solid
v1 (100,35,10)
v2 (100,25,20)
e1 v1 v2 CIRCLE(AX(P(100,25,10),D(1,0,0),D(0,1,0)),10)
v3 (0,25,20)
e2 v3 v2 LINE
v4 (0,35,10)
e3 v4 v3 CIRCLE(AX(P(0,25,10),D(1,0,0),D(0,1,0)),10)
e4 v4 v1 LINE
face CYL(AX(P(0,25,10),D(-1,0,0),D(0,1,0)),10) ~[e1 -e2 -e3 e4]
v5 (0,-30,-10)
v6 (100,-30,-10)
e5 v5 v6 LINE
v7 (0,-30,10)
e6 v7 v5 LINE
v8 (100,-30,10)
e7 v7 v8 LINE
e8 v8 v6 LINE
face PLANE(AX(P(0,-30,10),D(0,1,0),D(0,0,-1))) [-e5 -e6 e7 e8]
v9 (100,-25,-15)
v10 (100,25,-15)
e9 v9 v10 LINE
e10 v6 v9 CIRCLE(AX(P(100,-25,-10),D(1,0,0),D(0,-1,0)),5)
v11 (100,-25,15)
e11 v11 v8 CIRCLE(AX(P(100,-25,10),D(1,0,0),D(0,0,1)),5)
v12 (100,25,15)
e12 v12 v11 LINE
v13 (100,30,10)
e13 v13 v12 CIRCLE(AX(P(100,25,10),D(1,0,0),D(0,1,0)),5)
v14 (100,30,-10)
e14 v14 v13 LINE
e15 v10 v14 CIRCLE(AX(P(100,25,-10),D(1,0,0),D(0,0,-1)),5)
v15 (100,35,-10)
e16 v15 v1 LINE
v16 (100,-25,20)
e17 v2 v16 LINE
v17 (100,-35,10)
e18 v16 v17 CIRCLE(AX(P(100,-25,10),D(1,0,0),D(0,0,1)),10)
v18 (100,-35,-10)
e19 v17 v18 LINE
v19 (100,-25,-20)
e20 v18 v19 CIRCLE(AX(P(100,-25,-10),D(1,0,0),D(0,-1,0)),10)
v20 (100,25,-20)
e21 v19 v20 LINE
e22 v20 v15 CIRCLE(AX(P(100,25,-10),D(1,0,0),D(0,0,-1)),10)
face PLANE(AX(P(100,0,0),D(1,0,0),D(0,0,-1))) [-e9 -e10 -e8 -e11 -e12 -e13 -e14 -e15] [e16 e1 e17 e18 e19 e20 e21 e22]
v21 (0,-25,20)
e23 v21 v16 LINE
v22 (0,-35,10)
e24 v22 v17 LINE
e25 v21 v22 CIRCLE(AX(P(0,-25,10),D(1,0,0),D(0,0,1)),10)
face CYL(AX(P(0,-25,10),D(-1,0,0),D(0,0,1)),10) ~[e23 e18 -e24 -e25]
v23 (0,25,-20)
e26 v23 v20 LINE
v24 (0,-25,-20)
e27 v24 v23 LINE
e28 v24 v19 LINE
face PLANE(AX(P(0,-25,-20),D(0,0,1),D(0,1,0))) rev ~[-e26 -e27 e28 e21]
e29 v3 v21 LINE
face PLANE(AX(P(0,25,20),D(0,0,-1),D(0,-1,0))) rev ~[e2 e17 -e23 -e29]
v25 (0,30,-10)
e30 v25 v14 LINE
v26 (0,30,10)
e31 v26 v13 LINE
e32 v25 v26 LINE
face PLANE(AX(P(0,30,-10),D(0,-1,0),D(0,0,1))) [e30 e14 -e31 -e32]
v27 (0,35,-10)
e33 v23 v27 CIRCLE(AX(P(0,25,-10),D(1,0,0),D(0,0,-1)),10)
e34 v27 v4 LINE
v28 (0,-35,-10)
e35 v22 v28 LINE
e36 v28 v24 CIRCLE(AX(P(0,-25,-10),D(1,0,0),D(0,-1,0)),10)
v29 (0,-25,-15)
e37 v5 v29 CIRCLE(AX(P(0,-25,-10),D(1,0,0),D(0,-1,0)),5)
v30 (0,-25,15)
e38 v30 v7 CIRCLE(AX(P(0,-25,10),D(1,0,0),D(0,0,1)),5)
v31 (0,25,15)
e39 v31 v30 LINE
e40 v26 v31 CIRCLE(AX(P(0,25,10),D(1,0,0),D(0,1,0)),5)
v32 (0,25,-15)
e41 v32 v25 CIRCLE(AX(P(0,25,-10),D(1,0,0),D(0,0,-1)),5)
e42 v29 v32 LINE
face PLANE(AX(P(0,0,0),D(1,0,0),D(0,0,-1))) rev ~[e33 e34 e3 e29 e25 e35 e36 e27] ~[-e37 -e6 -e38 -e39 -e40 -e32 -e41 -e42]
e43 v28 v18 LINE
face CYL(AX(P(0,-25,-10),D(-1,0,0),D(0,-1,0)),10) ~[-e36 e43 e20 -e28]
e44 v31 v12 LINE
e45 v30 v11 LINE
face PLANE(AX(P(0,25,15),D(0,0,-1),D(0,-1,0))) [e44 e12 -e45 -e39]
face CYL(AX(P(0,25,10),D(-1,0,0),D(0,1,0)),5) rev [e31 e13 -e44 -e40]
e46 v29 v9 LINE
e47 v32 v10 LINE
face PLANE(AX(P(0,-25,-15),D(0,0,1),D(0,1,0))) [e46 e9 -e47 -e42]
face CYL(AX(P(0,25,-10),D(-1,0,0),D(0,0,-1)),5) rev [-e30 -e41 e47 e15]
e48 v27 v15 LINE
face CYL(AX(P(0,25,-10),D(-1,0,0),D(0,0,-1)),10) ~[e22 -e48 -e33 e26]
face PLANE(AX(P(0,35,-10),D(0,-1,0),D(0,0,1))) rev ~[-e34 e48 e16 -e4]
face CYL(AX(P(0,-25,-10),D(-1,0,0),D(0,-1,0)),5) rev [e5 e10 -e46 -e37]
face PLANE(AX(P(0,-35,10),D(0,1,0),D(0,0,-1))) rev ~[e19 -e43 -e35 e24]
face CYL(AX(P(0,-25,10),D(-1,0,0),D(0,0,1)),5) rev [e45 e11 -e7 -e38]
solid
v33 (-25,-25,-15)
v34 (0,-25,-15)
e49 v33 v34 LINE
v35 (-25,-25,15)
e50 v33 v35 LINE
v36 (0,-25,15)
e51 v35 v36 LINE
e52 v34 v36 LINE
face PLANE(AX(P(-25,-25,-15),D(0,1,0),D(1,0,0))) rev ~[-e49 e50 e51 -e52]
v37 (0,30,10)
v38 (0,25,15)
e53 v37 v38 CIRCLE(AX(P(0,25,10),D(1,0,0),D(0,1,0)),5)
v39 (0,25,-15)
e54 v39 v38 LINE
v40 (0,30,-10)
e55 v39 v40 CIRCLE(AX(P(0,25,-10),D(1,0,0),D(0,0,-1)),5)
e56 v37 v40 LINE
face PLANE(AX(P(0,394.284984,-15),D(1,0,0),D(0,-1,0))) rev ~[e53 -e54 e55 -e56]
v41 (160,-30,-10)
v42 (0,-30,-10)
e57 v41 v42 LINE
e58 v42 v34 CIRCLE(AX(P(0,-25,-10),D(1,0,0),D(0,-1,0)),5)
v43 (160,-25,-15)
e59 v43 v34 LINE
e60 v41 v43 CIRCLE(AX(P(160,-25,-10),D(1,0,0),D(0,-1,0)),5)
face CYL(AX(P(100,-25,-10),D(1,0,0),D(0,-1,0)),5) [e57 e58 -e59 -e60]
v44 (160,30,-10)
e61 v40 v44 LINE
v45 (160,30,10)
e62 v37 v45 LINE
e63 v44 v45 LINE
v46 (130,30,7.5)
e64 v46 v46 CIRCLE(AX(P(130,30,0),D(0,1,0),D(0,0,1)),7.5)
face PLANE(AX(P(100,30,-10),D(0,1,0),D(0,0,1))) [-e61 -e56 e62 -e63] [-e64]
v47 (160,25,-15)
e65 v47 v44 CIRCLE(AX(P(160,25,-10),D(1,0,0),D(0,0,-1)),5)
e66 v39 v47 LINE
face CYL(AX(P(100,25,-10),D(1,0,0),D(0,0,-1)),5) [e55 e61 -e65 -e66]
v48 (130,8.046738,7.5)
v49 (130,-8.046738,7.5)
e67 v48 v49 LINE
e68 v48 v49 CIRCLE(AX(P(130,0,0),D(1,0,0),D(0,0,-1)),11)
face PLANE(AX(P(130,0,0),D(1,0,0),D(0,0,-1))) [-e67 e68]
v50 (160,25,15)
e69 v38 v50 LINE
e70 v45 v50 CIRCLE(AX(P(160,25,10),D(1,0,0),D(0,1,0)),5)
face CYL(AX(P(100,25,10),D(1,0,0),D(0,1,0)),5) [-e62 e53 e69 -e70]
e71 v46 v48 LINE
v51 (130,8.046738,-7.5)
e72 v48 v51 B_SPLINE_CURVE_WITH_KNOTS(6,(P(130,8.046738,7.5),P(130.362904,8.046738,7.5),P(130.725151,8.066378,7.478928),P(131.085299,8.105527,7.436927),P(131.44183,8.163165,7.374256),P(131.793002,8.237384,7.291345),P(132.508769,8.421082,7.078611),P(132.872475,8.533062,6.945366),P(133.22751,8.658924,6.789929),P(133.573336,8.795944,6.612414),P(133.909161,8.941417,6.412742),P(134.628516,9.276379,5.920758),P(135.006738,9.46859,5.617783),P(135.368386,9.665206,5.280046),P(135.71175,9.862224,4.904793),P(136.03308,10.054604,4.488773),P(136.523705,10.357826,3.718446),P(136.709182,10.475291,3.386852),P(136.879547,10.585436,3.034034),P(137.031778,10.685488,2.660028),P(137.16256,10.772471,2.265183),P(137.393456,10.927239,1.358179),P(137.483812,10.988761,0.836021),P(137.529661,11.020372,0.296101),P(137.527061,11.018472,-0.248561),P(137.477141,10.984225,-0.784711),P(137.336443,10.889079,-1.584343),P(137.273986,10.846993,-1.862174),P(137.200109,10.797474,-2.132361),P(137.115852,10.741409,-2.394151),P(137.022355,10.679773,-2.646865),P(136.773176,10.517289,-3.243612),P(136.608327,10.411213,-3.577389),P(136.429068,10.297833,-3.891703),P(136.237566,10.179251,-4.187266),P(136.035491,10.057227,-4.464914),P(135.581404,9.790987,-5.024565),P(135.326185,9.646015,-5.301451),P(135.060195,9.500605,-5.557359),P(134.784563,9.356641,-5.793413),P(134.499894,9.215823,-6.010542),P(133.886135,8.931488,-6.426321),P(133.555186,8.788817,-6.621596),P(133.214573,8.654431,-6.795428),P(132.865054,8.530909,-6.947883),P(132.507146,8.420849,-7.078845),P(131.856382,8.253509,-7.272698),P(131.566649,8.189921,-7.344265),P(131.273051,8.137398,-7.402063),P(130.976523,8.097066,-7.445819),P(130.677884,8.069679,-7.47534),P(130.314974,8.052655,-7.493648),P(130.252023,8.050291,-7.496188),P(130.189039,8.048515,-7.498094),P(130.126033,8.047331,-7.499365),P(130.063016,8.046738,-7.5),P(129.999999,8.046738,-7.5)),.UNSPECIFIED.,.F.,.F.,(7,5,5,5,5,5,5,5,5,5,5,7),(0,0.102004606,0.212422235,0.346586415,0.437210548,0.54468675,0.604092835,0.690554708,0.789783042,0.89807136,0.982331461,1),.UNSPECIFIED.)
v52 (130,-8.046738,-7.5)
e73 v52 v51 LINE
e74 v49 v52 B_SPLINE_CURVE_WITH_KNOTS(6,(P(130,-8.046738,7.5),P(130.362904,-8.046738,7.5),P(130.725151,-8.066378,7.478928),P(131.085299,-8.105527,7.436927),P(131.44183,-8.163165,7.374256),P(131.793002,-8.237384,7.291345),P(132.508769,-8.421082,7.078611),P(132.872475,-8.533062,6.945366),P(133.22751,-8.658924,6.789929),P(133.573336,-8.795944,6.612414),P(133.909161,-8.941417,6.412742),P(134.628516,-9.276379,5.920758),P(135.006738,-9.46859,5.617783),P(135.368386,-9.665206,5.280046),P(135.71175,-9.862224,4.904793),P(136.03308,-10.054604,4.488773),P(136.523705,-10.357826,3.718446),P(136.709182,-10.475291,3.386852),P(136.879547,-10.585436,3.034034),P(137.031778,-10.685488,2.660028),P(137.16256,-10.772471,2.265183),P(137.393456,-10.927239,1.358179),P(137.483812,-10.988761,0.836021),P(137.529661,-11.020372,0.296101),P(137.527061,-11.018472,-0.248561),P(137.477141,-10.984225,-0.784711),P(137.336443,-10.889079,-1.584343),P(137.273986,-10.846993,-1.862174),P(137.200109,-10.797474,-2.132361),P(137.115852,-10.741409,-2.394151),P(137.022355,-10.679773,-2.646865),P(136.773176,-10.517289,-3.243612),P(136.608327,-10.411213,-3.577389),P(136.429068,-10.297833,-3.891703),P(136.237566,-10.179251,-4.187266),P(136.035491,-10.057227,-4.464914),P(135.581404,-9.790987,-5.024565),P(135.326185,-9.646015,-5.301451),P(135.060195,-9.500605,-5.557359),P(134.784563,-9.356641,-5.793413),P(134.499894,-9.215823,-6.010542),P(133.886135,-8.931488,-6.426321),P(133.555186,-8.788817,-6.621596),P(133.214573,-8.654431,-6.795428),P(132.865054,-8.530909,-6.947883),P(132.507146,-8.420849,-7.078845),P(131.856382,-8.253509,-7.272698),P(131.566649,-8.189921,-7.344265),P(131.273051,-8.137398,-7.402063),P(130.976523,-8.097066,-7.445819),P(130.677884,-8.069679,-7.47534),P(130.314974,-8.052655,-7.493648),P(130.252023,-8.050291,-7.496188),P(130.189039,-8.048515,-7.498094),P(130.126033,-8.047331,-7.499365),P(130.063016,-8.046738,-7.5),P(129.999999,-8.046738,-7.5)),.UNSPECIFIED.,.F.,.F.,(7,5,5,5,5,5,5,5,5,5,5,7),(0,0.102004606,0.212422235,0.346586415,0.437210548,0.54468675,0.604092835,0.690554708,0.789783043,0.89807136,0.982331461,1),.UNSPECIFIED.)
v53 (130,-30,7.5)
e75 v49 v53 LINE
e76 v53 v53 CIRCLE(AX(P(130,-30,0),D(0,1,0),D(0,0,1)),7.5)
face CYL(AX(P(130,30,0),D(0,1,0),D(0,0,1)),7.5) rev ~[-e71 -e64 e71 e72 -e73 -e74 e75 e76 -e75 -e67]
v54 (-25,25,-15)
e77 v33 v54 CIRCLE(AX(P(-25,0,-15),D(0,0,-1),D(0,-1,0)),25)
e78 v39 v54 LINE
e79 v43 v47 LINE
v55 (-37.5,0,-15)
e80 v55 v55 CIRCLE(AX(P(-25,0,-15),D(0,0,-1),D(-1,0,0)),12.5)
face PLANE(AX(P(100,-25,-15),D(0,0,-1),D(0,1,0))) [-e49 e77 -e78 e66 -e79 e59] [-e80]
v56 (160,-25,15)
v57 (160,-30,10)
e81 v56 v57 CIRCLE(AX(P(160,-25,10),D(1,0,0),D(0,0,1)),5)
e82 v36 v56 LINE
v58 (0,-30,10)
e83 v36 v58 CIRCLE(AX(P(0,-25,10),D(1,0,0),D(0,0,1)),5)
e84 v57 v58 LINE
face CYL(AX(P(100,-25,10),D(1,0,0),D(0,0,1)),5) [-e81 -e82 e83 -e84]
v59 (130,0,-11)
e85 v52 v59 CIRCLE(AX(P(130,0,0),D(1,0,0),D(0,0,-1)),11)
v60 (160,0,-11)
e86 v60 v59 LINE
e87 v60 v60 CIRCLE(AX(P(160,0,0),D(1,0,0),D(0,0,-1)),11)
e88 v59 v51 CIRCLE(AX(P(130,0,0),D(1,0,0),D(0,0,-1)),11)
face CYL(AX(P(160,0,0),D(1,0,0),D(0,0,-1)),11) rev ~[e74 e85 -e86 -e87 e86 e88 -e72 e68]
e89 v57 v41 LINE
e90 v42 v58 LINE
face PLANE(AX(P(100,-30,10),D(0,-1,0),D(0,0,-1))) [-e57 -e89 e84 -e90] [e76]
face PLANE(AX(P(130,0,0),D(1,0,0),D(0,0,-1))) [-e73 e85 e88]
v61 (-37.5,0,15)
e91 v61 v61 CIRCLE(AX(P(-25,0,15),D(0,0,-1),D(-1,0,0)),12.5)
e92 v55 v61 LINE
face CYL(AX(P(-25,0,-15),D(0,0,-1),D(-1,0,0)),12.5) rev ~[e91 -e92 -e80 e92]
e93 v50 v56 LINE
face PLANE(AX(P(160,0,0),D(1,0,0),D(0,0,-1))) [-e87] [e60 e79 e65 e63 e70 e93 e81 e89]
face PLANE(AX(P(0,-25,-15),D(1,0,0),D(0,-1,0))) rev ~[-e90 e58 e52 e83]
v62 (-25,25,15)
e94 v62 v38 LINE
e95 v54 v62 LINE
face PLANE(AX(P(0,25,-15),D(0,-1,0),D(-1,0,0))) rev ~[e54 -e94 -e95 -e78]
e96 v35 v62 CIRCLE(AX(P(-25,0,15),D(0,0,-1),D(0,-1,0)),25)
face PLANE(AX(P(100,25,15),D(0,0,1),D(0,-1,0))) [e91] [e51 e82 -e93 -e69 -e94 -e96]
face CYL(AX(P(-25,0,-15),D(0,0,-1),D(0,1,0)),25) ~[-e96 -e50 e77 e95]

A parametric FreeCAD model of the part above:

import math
import FreeCAD as App
import Part
import Sketcher
from FreeCAD import Vector
Q = App.Units.Quantity

doc = App.newDocument("Part")
body = doc.addObject("PartDesign::Body", "Body")

# Sketch on YZ plane
sketch1 = body.newObject("Sketcher::SketchObject", "Sketch")
sketch1.AttachmentSupport = (doc.getObject("YZ_Plane"), [""])
sketch1.MapMode = "FlatFace"
sketch1.addGeometry([
    Part.LineSegment(Vector(-35, 10, 0), Vector(-35, -10, 0)),  # 0
    Part.ArcOfCircle(Part.Circle(Vector(-25, -10, 0), Vector(0, 0, 1), 10), math.radians(180), math.radians(270)),  # 1
    Part.LineSegment(Vector(-25, -20, 0), Vector(25, -20, 0)),  # 2
    Part.ArcOfCircle(Part.Circle(Vector(25, -10, 0), Vector(0, 0, 1), 10), math.radians(-90), math.radians(0)),  # 3
    Part.LineSegment(Vector(35, -10, 0), Vector(35, 10, 0)),  # 4
    Part.ArcOfCircle(Part.Circle(Vector(25, 10, 0), Vector(0, 0, 1), 10), math.radians(0), math.radians(90)),  # 5
    Part.LineSegment(Vector(25, 20, 0), Vector(-25, 20, 0)),  # 6
    Part.ArcOfCircle(Part.Circle(Vector(-25, 10, 0), Vector(0, 0, 1), 10), math.radians(90), math.radians(180)),  # 7
    Part.LineSegment(Vector(-30, -10, 0), Vector(-30, 10, 0)),  # 8
    Part.ArcOfCircle(Part.Circle(Vector(-25, 10, 0), Vector(0, 0, 1), 5), math.radians(90), math.radians(180)),  # 9
    Part.LineSegment(Vector(-25, 15, 0), Vector(25, 15, 0)),  # 10
    Part.ArcOfCircle(Part.Circle(Vector(25, 10, 0), Vector(0, 0, 1), 5), math.radians(0), math.radians(90)),  # 11
    Part.LineSegment(Vector(30, 10, 0), Vector(30, -10, 0)),  # 12
    Part.ArcOfCircle(Part.Circle(Vector(25, -10, 0), Vector(0, 0, 1), 5), math.radians(-90), math.radians(0)),  # 13
    Part.LineSegment(Vector(25, -15, 0), Vector(-25, -15, 0)),  # 14
    Part.ArcOfCircle(Part.Circle(Vector(-25, -10, 0), Vector(0, 0, 1), 5), math.radians(180), math.radians(270)),  # 15
], False)
sketch1.addConstraint([
    Sketcher.Constraint("Tangent", 0, 2, 1, 1),
    Sketcher.Constraint("Tangent", 1, 2, 2, 1),
    Sketcher.Constraint("Tangent", 2, 2, 3, 1),
    Sketcher.Constraint("Tangent", 3, 2, 4, 1),
    Sketcher.Constraint("Tangent", 4, 2, 5, 1),
    Sketcher.Constraint("Tangent", 5, 2, 6, 1),
    Sketcher.Constraint("Tangent", 6, 2, 7, 1),
    Sketcher.Constraint("Tangent", 7, 2, 0, 1),
    Sketcher.Constraint("Tangent", 8, 2, 9, 2),
    Sketcher.Constraint("Tangent", 9, 1, 10, 1),
    Sketcher.Constraint("Tangent", 10, 2, 11, 2),
    Sketcher.Constraint("Tangent", 11, 1, 12, 1),
    Sketcher.Constraint("Tangent", 12, 2, 13, 2),
    Sketcher.Constraint("Tangent", 13, 1, 14, 1),
    Sketcher.Constraint("Tangent", 14, 2, 15, 2),
    Sketcher.Constraint("Tangent", 15, 1, 8, 1),
    Sketcher.Constraint("Vertical", 0),
    Sketcher.Constraint("Horizontal", 2),
    Sketcher.Constraint("Vertical", 4),
    Sketcher.Constraint("Horizontal", 6),
    Sketcher.Constraint("Vertical", 8),
    Sketcher.Constraint("Horizontal", 10),
    Sketcher.Constraint("Vertical", 12),
    Sketcher.Constraint("Horizontal", 14),
    Sketcher.Constraint("Coincident", 9, 3, 7, 3),
    Sketcher.Constraint("Coincident", 11, 3, 5, 3),
    Sketcher.Constraint("Coincident", 13, 3, 3, 3),
    Sketcher.Constraint("Equal", 1, 3),
    Sketcher.Constraint("Equal", 3, 5),
    Sketcher.Constraint("Equal", 5, 7),
    Sketcher.Constraint("Equal", 13, 15),
    Sketcher.Constraint("Symmetric", 1, 3, 5, 3, -1, 1),
    Sketcher.Constraint("Radius", 1, Q("10 mm")),
    Sketcher.Constraint("Radius", 9, Q("5 mm")),
    Sketcher.Constraint("DistanceX", 2, 1, 2, 2, Q("50 mm")),
    Sketcher.Constraint("DistanceY", 0, 2, 0, 1, Q("20 mm")),
])
pad1 = body.newObject("PartDesign::Pad", "Pad")
pad1.Profile = sketch1
pad1.Length = 100
body2 = doc.addObject("PartDesign::Body", "Body001")

# Sketch on YZ plane
sketch2 = body2.newObject("Sketcher::SketchObject", "Sketch001")
sketch2.AttachmentSupport = (doc.getObject("YZ_Plane001"), [""])
sketch2.MapMode = "FlatFace"
sketch2.AttachmentOffset = App.Placement(Vector(0, 0, 100), App.Rotation())
sketch2.addGeometry([
    Part.LineSegment(Vector(-25, -15, 0), Vector(25, -15, 0)),  # 0
    Part.ArcOfCircle(Part.Circle(Vector(25, -10, 0), Vector(0, 0, 1), 5), math.radians(-90), math.radians(0)),  # 1
    Part.LineSegment(Vector(30, -10, 0), Vector(30, 10, 0)),  # 2
    Part.ArcOfCircle(Part.Circle(Vector(25, 10, 0), Vector(0, 0, 1), 5), math.radians(0), math.radians(90)),  # 3
    Part.LineSegment(Vector(25, 15, 0), Vector(-25, 15, 0)),  # 4
    Part.ArcOfCircle(Part.Circle(Vector(-25, 10, 0), Vector(0, 0, 1), 5), math.radians(90), math.radians(180)),  # 5
    Part.LineSegment(Vector(-30, 10, 0), Vector(-30, -10, 0)),  # 6
    Part.ArcOfCircle(Part.Circle(Vector(-25, -10, 0), Vector(0, 0, 1), 5), math.radians(180), math.radians(270)),  # 7
], False)
sketch2.addConstraint([
    Sketcher.Constraint("Tangent", 0, 2, 1, 1),
    Sketcher.Constraint("Tangent", 1, 2, 2, 1),
    Sketcher.Constraint("Tangent", 2, 2, 3, 1),
    Sketcher.Constraint("Tangent", 3, 2, 4, 1),
    Sketcher.Constraint("Tangent", 4, 2, 5, 1),
    Sketcher.Constraint("Tangent", 5, 2, 6, 1),
    Sketcher.Constraint("Tangent", 6, 2, 7, 1),
    Sketcher.Constraint("Tangent", 7, 2, 0, 1),
    Sketcher.Constraint("Horizontal", 0),
    Sketcher.Constraint("Vertical", 2),
    Sketcher.Constraint("Horizontal", 4),
    Sketcher.Constraint("Vertical", 6),
    Sketcher.Constraint("Equal", 1, 3),
    Sketcher.Constraint("Equal", 3, 5),
    Sketcher.Constraint("Equal", 5, 7),
    Sketcher.Constraint("Symmetric", 1, 3, 5, 3, -1, 1),
    Sketcher.Constraint("Radius", 1, Q("5 mm")),
    Sketcher.Constraint("DistanceX", 0, 1, 0, 2, Q("50 mm")),
    Sketcher.Constraint("DistanceY", 2, 1, 2, 2, Q("20 mm")),
])
pad2 = body2.newObject("PartDesign::Pad", "Pad001")
pad2.Profile = sketch2
pad2.Type = "TwoLengths"
pad2.Length = 60
pad2.Length2 = 150

# Sketch on YZ plane
sketch3 = body2.newObject("Sketcher::SketchObject", "Sketch002")
sketch3.AttachmentSupport = (doc.getObject("YZ_Plane001"), [""])
sketch3.MapMode = "FlatFace"
sketch3.AttachmentOffset = App.Placement(Vector(0, 0, 160), App.Rotation())
sketch3.addGeometry(Part.Circle(Vector(0, 0, 0), Vector(0, 0, 1), 11), False)
sketch3.addConstraint([
    Sketcher.Constraint("Coincident", 0, 3, -1, 1),
    Sketcher.Constraint("Diameter", 0, Q("22 mm")),
])
pocket1 = body2.newObject("PartDesign::Pocket", "Pocket")
pocket1.Profile = sketch3
pocket1.Length = 30

# Sketch on XZ plane
sketch4 = body2.newObject("Sketcher::SketchObject", "Sketch003")
sketch4.AttachmentSupport = (doc.getObject("XZ_Plane001"), [""])
sketch4.MapMode = "FlatFace"
sketch4.AttachmentOffset = App.Placement(Vector(0, 0, -30), App.Rotation())
sketch4.addGeometry(Part.Circle(Vector(130, 0, 0), Vector(0, 0, 1), 7.5), False)
sketch4.addConstraint([
    Sketcher.Constraint("PointOnObject", 0, 3, -1),
    Sketcher.Constraint("Diameter", 0, Q("15 mm")),
    Sketcher.Constraint("DistanceX", -1, 1, 0, 3, Q("130 mm")),
])
pocket2 = body2.newObject("PartDesign::Pocket", "Pocket001")
pocket2.Profile = sketch4
pocket2.Type = "ThroughAll"
pocket2.Reversed = True

# Sketch on XY plane
sketch5 = body2.newObject("Sketcher::SketchObject", "Sketch004")
sketch5.AttachmentSupport = (doc.getObject("XY_Plane001"), [""])
sketch5.MapMode = "FlatFace"
sketch5.AttachmentOffset = App.Placement(Vector(0, 0, -15), App.Rotation())
sketch5.addGeometry([
    Part.LineSegment(Vector(0, 394.284984, 0), Vector(0, 25, 0)),  # 0
    Part.LineSegment(Vector(0, 25, 0), Vector(-25, 25, 0)),  # 1
    Part.ArcOfCircle(Part.Circle(Vector(-25, 0, 0), Vector(0, 0, 1), 25), math.radians(90), math.radians(270)),  # 2
    Part.LineSegment(Vector(-25, -25, 0), Vector(0, -25, 0)),  # 3
    Part.LineSegment(Vector(0, -25, 0), Vector(0, -389.284984, 0)),  # 4
    Part.LineSegment(Vector(0, -389.284984, 0), Vector(-718.569968, -389.284984, 0)),  # 5
    Part.LineSegment(Vector(-718.569968, -389.284984, 0), Vector(-718.569968, 394.284984, 0)),  # 6
    Part.LineSegment(Vector(-718.569968, 394.284984, 0), Vector(0, 394.284984, 0)),  # 7
], False)
sketch5.addConstraint([
    Sketcher.Constraint("Coincident", 0, 2, 1, 1),
    Sketcher.Constraint("Tangent", 1, 2, 2, 1),
    Sketcher.Constraint("Tangent", 2, 2, 3, 1),
    Sketcher.Constraint("Coincident", 3, 2, 4, 1),
    Sketcher.Constraint("Coincident", 4, 2, 5, 1),
    Sketcher.Constraint("Coincident", 5, 2, 6, 1),
    Sketcher.Constraint("Coincident", 6, 2, 7, 1),
    Sketcher.Constraint("Coincident", 7, 2, 0, 1),
    Sketcher.Constraint("Vertical", 0),
    Sketcher.Constraint("Horizontal", 1),
    Sketcher.Constraint("Horizontal", 3),
    Sketcher.Constraint("Vertical", 4),
    Sketcher.Constraint("Horizontal", 5),
    Sketcher.Constraint("Vertical", 6),
    Sketcher.Constraint("Horizontal", 7),
    Sketcher.Constraint("Symmetric", 0, 2, 3, 2, -1, 1),
    Sketcher.Constraint("PointOnObject", 0, 2, -2),
    Sketcher.Constraint("Radius", 2, Q("25 mm")),
    Sketcher.Constraint("DistanceX", 1, 2, 1, 1, Q("25 mm")),
    Sketcher.Constraint("DistanceX", 5, 2, 5, 1, Q("718.569968 mm")),
    Sketcher.Constraint("DistanceY", 6, 1, 6, 2, Q("783.569968 mm")),
    Sketcher.Constraint("DistanceY", 0, 2, 0, 1, Q("369.284984 mm")),
])
pocket3 = body2.newObject("PartDesign::Pocket", "Pocket002")
pocket3.Profile = sketch5
pocket3.Type = "ThroughAll"
pocket3.Midplane = True

# Sketch on XY plane
sketch6 = body2.newObject("Sketcher::SketchObject", "Sketch005")
sketch6.AttachmentSupport = (doc.getObject("XY_Plane001"), [""])
sketch6.MapMode = "FlatFace"
sketch6.AttachmentOffset = App.Placement(Vector(0, 0, -15), App.Rotation())
sketch6.addGeometry(Part.Circle(Vector(-25, 0, 0), Vector(0, 0, 1), 12.5), False)
sketch6.addConstraint([
    Sketcher.Constraint("PointOnObject", 0, 3, -1),
    Sketcher.Constraint("Diameter", 0, Q("25 mm")),
    Sketcher.Constraint("DistanceX", 0, 3, -1, 1, Q("25 mm")),
])
pocket4 = body2.newObject("PartDesign::Pocket", "Pocket003")
pocket4.Profile = sketch6
pocket4.Type = "ThroughAll"
pocket4.Reversed = True

doc.recompute()
